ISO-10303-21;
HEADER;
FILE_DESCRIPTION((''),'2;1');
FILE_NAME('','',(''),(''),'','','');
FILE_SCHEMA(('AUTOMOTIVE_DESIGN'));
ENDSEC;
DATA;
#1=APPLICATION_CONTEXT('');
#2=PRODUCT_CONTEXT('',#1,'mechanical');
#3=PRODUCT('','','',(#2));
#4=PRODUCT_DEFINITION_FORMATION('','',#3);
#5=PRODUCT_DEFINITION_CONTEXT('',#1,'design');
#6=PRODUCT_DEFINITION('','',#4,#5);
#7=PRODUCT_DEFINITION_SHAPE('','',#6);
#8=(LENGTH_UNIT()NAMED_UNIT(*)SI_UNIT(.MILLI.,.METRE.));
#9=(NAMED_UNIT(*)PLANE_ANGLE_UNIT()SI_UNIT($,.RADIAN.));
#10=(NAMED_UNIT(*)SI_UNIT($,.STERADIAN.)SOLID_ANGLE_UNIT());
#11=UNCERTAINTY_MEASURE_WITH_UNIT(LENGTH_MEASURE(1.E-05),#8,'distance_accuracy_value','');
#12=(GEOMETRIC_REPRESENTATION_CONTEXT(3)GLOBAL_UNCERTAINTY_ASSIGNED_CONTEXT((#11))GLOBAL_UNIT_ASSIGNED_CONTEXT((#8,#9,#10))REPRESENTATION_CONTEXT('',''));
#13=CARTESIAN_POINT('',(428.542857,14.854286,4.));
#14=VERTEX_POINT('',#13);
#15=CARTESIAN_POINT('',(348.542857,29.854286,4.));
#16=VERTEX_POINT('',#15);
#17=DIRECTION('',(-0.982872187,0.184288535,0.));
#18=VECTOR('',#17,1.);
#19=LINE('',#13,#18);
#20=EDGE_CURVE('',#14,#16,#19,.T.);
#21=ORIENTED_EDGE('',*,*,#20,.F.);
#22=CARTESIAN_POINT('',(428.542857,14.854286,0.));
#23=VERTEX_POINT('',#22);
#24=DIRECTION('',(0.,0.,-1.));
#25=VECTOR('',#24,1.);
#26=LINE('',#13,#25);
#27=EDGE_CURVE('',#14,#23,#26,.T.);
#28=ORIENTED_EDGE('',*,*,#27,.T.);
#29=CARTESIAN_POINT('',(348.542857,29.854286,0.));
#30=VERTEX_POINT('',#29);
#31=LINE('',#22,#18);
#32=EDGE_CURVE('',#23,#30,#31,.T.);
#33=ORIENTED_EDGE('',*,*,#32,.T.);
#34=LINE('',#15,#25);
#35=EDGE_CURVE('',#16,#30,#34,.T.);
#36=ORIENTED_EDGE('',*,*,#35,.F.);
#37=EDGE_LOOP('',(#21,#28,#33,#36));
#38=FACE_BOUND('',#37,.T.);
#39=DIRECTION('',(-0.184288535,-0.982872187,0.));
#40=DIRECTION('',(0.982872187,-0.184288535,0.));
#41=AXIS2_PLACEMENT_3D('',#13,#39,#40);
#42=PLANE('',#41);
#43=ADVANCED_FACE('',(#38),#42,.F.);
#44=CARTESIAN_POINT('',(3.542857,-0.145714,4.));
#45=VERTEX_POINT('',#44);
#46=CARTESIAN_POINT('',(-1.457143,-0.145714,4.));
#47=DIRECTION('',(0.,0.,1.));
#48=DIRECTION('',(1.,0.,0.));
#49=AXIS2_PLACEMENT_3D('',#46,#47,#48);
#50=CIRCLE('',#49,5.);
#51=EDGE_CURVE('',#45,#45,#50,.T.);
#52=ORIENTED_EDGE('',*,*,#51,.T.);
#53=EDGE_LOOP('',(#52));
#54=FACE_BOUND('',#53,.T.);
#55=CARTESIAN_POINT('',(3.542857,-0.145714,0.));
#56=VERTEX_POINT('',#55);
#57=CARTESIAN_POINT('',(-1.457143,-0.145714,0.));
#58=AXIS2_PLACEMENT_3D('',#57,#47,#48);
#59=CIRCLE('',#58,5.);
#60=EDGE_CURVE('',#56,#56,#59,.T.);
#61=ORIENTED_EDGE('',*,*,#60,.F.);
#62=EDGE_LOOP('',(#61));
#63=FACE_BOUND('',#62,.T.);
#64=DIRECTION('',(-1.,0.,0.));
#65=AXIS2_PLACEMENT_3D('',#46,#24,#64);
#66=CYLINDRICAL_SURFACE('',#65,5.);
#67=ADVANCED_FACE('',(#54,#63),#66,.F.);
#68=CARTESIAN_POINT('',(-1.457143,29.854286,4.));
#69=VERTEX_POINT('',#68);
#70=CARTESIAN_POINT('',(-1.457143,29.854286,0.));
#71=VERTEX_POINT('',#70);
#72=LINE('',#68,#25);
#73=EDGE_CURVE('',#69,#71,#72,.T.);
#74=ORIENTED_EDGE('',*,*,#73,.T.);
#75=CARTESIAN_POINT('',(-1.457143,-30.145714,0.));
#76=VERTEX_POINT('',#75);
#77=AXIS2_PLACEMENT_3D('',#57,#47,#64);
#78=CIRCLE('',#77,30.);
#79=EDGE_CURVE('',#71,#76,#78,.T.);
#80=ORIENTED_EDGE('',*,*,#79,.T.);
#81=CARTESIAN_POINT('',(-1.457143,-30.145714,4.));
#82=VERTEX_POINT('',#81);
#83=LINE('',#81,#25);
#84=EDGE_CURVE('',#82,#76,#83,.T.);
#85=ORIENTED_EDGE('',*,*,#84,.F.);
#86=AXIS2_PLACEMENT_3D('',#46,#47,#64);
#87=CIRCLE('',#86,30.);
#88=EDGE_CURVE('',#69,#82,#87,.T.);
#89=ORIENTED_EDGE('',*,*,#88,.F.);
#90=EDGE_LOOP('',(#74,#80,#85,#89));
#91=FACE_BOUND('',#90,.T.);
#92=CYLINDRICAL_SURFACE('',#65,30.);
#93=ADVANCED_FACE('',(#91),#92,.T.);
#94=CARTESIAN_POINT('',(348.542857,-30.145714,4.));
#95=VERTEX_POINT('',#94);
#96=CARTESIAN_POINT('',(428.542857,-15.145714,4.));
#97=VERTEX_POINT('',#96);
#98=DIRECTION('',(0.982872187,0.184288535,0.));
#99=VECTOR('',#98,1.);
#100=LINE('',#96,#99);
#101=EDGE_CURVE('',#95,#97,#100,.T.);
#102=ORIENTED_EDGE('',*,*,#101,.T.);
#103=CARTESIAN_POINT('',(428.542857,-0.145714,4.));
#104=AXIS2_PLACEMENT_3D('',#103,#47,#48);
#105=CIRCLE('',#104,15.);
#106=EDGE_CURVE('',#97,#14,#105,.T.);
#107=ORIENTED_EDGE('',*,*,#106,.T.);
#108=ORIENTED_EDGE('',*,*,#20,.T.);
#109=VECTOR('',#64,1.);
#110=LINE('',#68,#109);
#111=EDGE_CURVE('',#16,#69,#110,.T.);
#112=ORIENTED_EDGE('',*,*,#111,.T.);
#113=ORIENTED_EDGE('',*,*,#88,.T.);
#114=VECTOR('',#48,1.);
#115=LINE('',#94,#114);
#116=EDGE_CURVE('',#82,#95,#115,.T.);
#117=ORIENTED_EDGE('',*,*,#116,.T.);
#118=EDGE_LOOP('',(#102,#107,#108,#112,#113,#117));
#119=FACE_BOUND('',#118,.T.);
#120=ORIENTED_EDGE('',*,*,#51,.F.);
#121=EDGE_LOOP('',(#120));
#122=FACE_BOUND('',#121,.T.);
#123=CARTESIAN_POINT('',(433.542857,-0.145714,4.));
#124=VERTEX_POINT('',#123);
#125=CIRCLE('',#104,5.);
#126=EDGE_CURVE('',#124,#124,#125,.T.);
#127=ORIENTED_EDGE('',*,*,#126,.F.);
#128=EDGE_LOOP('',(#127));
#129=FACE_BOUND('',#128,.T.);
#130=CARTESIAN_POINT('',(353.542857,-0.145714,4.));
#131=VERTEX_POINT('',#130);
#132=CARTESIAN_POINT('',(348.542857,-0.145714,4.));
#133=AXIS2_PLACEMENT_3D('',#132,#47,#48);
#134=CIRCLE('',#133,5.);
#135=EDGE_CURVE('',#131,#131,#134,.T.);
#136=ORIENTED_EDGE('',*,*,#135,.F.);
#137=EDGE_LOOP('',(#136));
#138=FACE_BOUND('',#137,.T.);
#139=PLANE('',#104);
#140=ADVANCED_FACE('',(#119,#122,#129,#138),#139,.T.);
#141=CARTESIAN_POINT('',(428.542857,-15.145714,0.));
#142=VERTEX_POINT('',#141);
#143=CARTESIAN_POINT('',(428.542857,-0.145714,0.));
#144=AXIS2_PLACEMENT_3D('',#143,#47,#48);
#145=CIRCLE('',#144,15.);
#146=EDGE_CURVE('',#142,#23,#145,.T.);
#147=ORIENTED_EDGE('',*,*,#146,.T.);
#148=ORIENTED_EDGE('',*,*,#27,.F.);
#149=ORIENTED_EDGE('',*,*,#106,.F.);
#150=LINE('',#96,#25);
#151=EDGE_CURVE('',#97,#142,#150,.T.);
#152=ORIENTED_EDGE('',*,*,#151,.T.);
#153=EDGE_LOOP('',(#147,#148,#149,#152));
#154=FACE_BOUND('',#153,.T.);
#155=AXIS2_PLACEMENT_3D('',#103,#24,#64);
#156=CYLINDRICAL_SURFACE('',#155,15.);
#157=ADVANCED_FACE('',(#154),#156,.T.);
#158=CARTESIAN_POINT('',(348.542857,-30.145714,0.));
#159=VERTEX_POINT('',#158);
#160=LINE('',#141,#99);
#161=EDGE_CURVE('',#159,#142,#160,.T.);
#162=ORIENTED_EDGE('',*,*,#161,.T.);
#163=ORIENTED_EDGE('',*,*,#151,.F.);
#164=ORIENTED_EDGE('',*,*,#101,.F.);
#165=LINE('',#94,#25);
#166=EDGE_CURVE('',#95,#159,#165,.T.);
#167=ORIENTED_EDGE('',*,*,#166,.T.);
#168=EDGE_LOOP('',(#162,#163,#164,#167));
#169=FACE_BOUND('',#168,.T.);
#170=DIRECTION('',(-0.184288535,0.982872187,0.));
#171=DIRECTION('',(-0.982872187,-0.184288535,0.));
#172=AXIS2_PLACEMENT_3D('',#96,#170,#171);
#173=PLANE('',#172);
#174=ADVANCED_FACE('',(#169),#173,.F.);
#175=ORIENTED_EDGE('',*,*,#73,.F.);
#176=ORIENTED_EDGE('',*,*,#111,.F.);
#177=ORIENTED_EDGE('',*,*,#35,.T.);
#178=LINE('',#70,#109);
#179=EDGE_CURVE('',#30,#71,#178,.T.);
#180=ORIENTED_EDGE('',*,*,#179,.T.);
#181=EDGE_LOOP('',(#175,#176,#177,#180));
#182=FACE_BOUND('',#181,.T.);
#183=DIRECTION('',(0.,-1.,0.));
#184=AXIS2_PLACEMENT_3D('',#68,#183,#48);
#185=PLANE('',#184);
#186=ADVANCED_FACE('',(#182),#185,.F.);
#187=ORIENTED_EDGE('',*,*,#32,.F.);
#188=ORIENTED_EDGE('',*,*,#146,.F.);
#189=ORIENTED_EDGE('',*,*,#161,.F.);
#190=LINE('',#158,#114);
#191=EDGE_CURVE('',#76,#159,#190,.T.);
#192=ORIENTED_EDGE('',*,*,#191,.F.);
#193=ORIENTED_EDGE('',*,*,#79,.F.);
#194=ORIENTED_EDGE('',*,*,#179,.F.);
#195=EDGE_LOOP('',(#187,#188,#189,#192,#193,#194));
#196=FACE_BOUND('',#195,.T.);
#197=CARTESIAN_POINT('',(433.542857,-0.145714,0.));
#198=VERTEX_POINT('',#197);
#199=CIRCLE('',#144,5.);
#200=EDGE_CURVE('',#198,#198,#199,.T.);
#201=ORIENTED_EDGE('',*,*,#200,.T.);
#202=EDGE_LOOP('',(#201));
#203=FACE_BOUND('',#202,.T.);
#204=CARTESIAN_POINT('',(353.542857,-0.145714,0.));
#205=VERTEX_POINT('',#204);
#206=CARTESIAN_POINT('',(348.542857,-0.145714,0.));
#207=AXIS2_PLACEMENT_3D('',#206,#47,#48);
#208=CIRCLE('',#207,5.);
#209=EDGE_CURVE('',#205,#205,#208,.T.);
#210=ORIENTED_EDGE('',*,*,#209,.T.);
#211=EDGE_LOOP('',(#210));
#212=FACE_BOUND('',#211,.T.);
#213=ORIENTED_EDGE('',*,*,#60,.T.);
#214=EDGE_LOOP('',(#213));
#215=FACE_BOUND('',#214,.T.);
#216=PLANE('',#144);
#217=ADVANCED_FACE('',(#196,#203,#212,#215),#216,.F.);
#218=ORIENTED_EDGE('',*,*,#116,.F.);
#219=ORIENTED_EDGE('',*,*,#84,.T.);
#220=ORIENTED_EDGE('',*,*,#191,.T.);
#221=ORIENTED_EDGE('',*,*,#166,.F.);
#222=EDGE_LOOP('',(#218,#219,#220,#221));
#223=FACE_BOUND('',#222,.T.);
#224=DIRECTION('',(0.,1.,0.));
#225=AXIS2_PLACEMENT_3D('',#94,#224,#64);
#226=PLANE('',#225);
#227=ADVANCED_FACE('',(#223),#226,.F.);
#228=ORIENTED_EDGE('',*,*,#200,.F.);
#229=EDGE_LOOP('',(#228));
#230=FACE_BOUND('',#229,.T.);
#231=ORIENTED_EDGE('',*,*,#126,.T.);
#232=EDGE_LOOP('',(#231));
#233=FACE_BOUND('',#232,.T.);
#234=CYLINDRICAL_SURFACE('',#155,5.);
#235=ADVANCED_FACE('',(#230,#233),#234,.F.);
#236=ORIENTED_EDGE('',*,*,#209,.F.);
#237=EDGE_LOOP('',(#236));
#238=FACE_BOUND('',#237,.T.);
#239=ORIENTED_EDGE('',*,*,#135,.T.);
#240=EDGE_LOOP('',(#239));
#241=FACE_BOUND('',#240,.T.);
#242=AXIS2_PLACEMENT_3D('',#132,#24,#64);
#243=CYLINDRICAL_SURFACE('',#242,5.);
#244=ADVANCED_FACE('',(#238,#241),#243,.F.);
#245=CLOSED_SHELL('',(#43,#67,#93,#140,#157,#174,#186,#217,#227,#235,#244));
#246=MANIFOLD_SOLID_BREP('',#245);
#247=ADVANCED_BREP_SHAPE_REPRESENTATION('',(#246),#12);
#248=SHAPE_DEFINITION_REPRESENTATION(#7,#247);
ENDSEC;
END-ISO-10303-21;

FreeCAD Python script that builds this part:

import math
import FreeCAD as App
import Part
import Sketcher

V = App.Vector

doc = App.newDocument("Part")
params = doc.addObject("Spreadsheet::Sheet", "Params")
for row, (alias, value) in enumerate([
    ("sketch1_diameter", "10 mm"),
    ("sketch1_radius", "15 mm"),
    ("sketch1_radius2", "30 mm"),
    ("sketch1_width", "350 mm"),
    ("pad1_length", "4 mm"),
], start=1):
    params.set(f"A{row}", alias)
    params.set(f"B{row}", "=" + value)
    params.setAlias(f"B{row}", alias)

body = doc.addObject("PartDesign::Body", "Body")

sketch1 = body.newObject("Sketcher::SketchObject", "Sketch")
sketch1.AttachmentSupport = (doc.getObject("XY_Plane"), [""])
sketch1.MapMode = "FlatFace"
sketch1.addGeometry(Part.LineSegment(V(349, -30, 0), V(429, -15, 0)), False)
sketch1.addGeometry(Part.ArcOfCircle(Part.Circle(V(429, 0, 0), V(0, 0, 1), 15), math.radians(-90), math.radians(90)), False)
sketch1.addGeometry(Part.LineSegment(V(429, 15, 0), V(349, 30, 0)), False)
sketch1.addGeometry(Part.LineSegment(V(349, 30, 0), V(-1, 30, 0)), False)
sketch1.addGeometry(Part.ArcOfCircle(Part.Circle(V(-1, 0, 0), V(0, 0, 1), 30), math.radians(90), math.radians(270)), False)
sketch1.addGeometry(Part.LineSegment(V(-1, -30, 0), V(349, -30, 0)), False)
sketch1.addGeometry(Part.Circle(V(429, 0, 0), V(0, 0, 1), 5), False)
sketch1.addGeometry(Part.Circle(V(349, 0, 0), V(0, 0, 1), 5), False)
sketch1.addGeometry(Part.Circle(V(-1, 0, 0), V(0, 0, 1), 5), False)
sketch1.addConstraint(Sketcher.Constraint("Coincident", 0, 2, 1, 1))
sketch1.addConstraint(Sketcher.Constraint("Coincident", 1, 2, 2, 1))
sketch1.addConstraint(Sketcher.Constraint("Coincident", 2, 2, 3, 1))
sketch1.addConstraint(Sketcher.Constraint("Tangent", 3, 2, 4, 1))
sketch1.addConstraint(Sketcher.Constraint("Tangent", 4, 2, 5, 1))
sketch1.addConstraint(Sketcher.Constraint("Coincident", 5, 2, 0, 1))
sketch1.addConstraint(Sketcher.Constraint("Horizontal", 3))
sketch1.addConstraint(Sketcher.Constraint("Horizontal", 5))
sketch1.addConstraint(Sketcher.Constraint("Coincident", 6, 3, 1, 3))
sketch1.addConstraint(Sketcher.Constraint("Coincident", 8, 3, 4, 3))
sketch1.addConstraint(Sketcher.Constraint("Equal", 6, 7))
sketch1.addConstraint(Sketcher.Constraint("Equal", 7, 8))
sketch1.addConstraint(Sketcher.Constraint("Horizontal", 1, 3, 4, 3))
sketch1.addConstraint(Sketcher.Constraint("Horizontal", 6, 3, 7, 3))
sketch1.addConstraint(Sketcher.Constraint("Vertical", 6, 3, 0, 2))
sketch1.addConstraint(Sketcher.Constraint("Vertical", 0, 2, 1, 2))
sketch1.addConstraint(Sketcher.Constraint("Vertical", 7, 3, 2, 2))
sketch1.addConstraint(Sketcher.Constraint("Vertical", 2, 2, 5, 2))
sketch1.addConstraint(Sketcher.Constraint("Diameter", 6, 10.0))
sketch1.addConstraint(Sketcher.Constraint("Radius", 1, 15.0))
sketch1.addConstraint(Sketcher.Constraint("Radius", 4, 30.0))
sketch1.addConstraint(Sketcher.Constraint("DistanceX", 3, 2, 3, 1, 350.0))
sketch1.addConstraint(Sketcher.Constraint("DistanceX", 4, 3, 1, 3, 430.0))
sketch1.addConstraint(Sketcher.Constraint("DistanceX", -1, 1, 1, 3, 428.542857))
sketch1.addConstraint(Sketcher.Constraint("DistanceY", 1, 3, -1, 1, 0.145714))
sketch1.setExpression("Constraints[18]", "Params.sketch1_diameter")
sketch1.setExpression("Constraints[19]", "Params.sketch1_radius")
sketch1.setExpression("Constraints[20]", "Params.sketch1_radius2")
sketch1.setExpression("Constraints[21]", "Params.sketch1_width")
pad1 = body.newObject("PartDesign::Pad", "Pad")
pad1.Profile = sketch1
pad1.setExpression("Length", "Params.pad1_length")

doc.recompute()
